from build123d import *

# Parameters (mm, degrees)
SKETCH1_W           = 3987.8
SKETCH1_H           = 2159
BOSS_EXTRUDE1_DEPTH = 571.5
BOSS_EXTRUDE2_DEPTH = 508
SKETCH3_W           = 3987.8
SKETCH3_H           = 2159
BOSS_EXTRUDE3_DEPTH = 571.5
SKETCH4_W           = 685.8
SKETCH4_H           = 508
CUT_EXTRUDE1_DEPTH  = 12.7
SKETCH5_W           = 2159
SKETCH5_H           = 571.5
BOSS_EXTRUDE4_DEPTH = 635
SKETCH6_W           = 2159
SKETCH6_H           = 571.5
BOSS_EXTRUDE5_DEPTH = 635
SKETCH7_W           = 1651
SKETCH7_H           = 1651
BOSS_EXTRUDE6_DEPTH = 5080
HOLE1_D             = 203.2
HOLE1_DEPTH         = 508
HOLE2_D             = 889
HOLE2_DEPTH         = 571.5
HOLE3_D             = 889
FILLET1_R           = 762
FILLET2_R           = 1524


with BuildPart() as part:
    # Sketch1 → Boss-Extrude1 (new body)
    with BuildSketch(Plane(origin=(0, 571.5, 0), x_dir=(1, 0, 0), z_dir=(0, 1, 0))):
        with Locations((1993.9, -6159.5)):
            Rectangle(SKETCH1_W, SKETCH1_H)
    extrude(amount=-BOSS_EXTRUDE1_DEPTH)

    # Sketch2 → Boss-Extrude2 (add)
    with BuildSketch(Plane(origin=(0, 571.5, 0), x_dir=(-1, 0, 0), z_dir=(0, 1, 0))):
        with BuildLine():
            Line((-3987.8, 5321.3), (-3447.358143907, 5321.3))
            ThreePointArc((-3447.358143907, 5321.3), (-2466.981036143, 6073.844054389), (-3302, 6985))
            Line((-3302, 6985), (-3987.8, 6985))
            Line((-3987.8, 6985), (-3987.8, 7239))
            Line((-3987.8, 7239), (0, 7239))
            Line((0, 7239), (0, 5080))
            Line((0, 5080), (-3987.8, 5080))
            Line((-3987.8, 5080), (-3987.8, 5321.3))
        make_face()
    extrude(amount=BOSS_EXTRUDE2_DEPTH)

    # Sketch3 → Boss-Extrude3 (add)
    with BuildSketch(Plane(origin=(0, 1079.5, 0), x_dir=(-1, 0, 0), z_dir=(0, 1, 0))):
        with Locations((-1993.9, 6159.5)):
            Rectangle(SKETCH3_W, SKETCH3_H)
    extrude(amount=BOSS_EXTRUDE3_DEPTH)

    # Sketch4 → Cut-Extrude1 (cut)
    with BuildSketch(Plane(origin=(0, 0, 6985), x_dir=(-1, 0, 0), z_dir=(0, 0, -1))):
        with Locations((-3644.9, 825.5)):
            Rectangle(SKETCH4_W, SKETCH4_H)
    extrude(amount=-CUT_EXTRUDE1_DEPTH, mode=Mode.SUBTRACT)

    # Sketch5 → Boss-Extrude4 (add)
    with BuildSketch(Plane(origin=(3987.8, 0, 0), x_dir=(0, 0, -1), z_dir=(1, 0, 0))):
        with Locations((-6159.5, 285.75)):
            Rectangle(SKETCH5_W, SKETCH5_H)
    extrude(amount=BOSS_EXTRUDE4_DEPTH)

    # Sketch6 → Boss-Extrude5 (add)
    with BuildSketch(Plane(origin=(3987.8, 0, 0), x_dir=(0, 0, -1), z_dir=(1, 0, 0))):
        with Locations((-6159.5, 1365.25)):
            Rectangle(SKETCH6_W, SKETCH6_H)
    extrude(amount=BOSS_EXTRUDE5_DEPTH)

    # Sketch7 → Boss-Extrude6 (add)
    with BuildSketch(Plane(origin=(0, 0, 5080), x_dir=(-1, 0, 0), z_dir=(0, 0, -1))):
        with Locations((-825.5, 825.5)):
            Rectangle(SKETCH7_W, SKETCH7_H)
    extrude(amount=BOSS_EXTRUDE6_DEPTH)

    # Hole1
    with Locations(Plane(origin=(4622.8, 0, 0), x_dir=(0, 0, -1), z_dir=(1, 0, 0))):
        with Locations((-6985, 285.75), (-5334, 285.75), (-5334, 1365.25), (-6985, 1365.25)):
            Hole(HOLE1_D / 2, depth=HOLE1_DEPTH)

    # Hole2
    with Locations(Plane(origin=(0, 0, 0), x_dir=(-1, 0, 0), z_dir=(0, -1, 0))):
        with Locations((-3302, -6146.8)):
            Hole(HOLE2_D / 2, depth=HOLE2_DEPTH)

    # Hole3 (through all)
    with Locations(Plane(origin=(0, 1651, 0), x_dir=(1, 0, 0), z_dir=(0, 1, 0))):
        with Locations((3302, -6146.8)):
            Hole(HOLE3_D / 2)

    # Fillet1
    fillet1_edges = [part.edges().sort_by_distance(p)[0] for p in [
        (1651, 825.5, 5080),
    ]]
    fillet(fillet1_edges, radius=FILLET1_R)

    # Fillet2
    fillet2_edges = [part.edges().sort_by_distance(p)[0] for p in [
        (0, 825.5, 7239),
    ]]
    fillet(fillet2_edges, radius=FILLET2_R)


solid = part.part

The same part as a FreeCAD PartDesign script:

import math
import FreeCAD as App
import Part
import Sketcher
Q = App.Units.Quantity


def edges_at(feature, points):
    """Names of the edges that pass closest to the given points."""
    edges = feature.Shape.Edges
    near = lambda p: min(range(len(edges)), key=lambda i: edges[i].distToShape(Part.Vertex(*p))[0])
    return sorted({f"Edge{near(p) + 1}" for p in points})

doc = App.newDocument("Part")
body = doc.addObject("PartDesign::Body", "Body")

# Sketch on XZ plane
sketch1 = body.newObject("Sketcher::SketchObject", "Sketch")
sketch1.AttachmentSupport = (doc.getObject("XZ_Plane"), [""])
sketch1.MapMode = "FlatFace"
sketch1.AttachmentOffset = App.Placement(App.Vector(0, 0, -22.5 * 25.4), App.Rotation())
sketch1.addGeometry([
    Part.LineSegment(App.Vector(0, 5080, 0), App.Vector(0, 7239, 0)),
    Part.LineSegment(App.Vector(0, 7239, 0), App.Vector(3988, 7239, 0)),
    Part.LineSegment(App.Vector(3988, 7239, 0), App.Vector(3988, 5080, 0)),
    Part.LineSegment(App.Vector(3988, 5080, 0), App.Vector(0, 5080, 0)),
], False)
sketch1.addConstraint([
    Sketcher.Constraint("Coincident", 0, 2, 1, 1),
    Sketcher.Constraint("Coincident", 1, 2, 2, 1),
    Sketcher.Constraint("Coincident", 2, 2, 3, 1),
    Sketcher.Constraint("Coincident", 3, 2, 0, 1),
    Sketcher.Constraint("Vertical", 0),
    Sketcher.Constraint("Horizontal", 1),
    Sketcher.Constraint("Vertical", 2),
    Sketcher.Constraint("Horizontal", 3),
    Sketcher.Constraint("PointOnObject", 0, 2, -2),
    Sketcher.Constraint("DistanceX", 1, 1, 1, 2, Q("157 in")),
    Sketcher.Constraint("DistanceY", 0, 1, 0, 2, Q("85 in")),
    Sketcher.Constraint("DistanceY", -1, 1, 0, 2, Q("285 in")),
])
pad1 = body.newObject("PartDesign::Pad", "Pad")
pad1.Profile = sketch1
pad1.Length = Q("22.5 in")

# Sketch on XZ plane
sketch2 = body.newObject("Sketcher::SketchObject", "Sketch001")
sketch2.AttachmentSupport = (doc.getObject("XZ_Plane"), [""])
sketch2.MapMode = "FlatFace"
sketch2.AttachmentOffset = App.Placement(App.Vector(0, 0, -22.5 * 25.4), App.Rotation())
sketch2.addGeometry([
    Part.LineSegment(App.Vector(3447, 5321, 0), App.Vector(3988, 5321, 0)),  # 0
    Part.LineSegment(App.Vector(3988, 5321, 0), App.Vector(3988, 5080, 0)),  # 1
    Part.LineSegment(App.Vector(3988, 5080, 0), App.Vector(0, 5080, 0)),  # 2
    Part.LineSegment(App.Vector(0, 5080, 0), App.Vector(0, 7239, 0)),  # 3
    Part.LineSegment(App.Vector(0, 7239, 0), App.Vector(3988, 7239, 0)),  # 4
    Part.LineSegment(App.Vector(3988, 7239, 0), App.Vector(3988, 6985, 0)),  # 5
    Part.LineSegment(App.Vector(3988, 6985, 0), App.Vector(3302, 6985, 0)),  # 6
    Part.ArcOfCircle(Part.Circle(App.Vector(3302, 6147, 0), App.Vector(0, 0, 1), 838), math.radians(90), math.radians(280)),  # 7
], False)
sketch2.addConstraint([
    Sketcher.Constraint("Coincident", 0, 2, 1, 1),
    Sketcher.Constraint("Coincident", 1, 2, 2, 1),
    Sketcher.Constraint("Coincident", 2, 2, 3, 1),
    Sketcher.Constraint("Coincident", 3, 2, 4, 1),
    Sketcher.Constraint("Coincident", 4, 2, 5, 1),
    Sketcher.Constraint("Coincident", 5, 2, 6, 1),
    Sketcher.Constraint("Tangent", 6, 2, 7, 1),
    Sketcher.Constraint("Coincident", 7, 2, 0, 1),
    Sketcher.Constraint("Horizontal", 0),
    Sketcher.Constraint("Vertical", 1),
    Sketcher.Constraint("Horizontal", 2),
    Sketcher.Constraint("Vertical", 3),
    Sketcher.Constraint("Horizontal", 4),
    Sketcher.Constraint("Vertical", 5),
    Sketcher.Constraint("Horizontal", 6),
    Sketcher.Constraint("PointOnObject", 2, 2, -2),
    Sketcher.Constraint("Vertical", 1, 2, 4, 2),
    Sketcher.Constraint("Radius", 7, Q("33 in")),
    Sketcher.Constraint("DistanceX", 2, 2, 2, 1, Q("157 in")),
    Sketcher.Constraint("DistanceX", 6, 2, 6, 1, Q("27 in")),
    Sketcher.Constraint("DistanceY", 3, 1, 3, 2, Q("85 in")),
    Sketcher.Constraint("DistanceY", 5, 2, 5, 1, Q("10 in")),
    Sketcher.Constraint("DistanceY", 1, 2, 1, 1, Q("9.5 in")),
    Sketcher.Constraint("DistanceY", -1, 1, 7, 3, Q("242 in")),
])
pad2 = body.newObject("PartDesign::Pad", "Pad001")
pad2.Profile = sketch2
pad2.Length = Q("20 in")
pad2.Reversed = True

# Sketch on XZ plane
sketch3 = body.newObject("Sketcher::SketchObject", "Sketch002")
sketch3.AttachmentSupport = (doc.getObject("XZ_Plane"), [""])
sketch3.MapMode = "FlatFace"
sketch3.AttachmentOffset = App.Placement(App.Vector(0, 0, -42.5 * 25.4), App.Rotation())
sketch3.addGeometry([
    Part.LineSegment(App.Vector(3988, 7239, 0), App.Vector(3988, 5080, 0)),
    Part.LineSegment(App.Vector(3988, 5080, 0), App.Vector(0, 5080, 0)),
    Part.LineSegment(App.Vector(0, 5080, 0), App.Vector(0, 7239, 0)),
    Part.LineSegment(App.Vector(0, 7239, 0), App.Vector(3988, 7239, 0)),
], False)
sketch3.addConstraint([
    Sketcher.Constraint("Coincident", 0, 2, 1, 1),
    Sketcher.Constraint("Coincident", 1, 2, 2, 1),
    Sketcher.Constraint("Coincident", 2, 2, 3, 1),
    Sketcher.Constraint("Coincident", 3, 2, 0, 1),
    Sketcher.Constraint("Vertical", 0),
    Sketcher.Constraint("Horizontal", 1),
    Sketcher.Constraint("Vertical", 2),
    Sketcher.Constraint("Horizontal", 3),
    Sketcher.Constraint("PointOnObject", 1, 2, -2),
    Sketcher.Constraint("DistanceX", 1, 2, 1, 1, Q("157 in")),
    Sketcher.Constraint("DistanceY", 0, 2, 0, 1, Q("85 in")),
    Sketcher.Constraint("DistanceY", -1, 1, 0, 2, Q("200 in")),
])
pad3 = body.newObject("PartDesign::Pad", "Pad002")
pad3.Profile = sketch3
pad3.Length = Q("22.5 in")
pad3.Reversed = True

# Sketch on XY plane
sketch4 = body.newObject("Sketcher::SketchObject", "Sketch003")
sketch4.AttachmentSupport = (doc.getObject("XY_Plane"), [""])
sketch4.MapMode = "FlatFace"
sketch4.AttachmentOffset = App.Placement(App.Vector(0, 0, 275 * 25.4), App.Rotation())
sketch4.addGeometry([
    Part.LineSegment(App.Vector(3988, 1080, 0), App.Vector(3988, 572, 0)),
    Part.LineSegment(App.Vector(3988, 572, 0), App.Vector(3302, 572, 0)),
    Part.LineSegment(App.Vector(3302, 572, 0), App.Vector(3302, 1080, 0)),
    Part.LineSegment(App.Vector(3302, 1080, 0), App.Vector(3988, 1080, 0)),
], False)
sketch4.addConstraint([
    Sketcher.Constraint("Coincident", 0, 2, 1, 1),
    Sketcher.Constraint("Coincident", 1, 2, 2, 1),
    Sketcher.Constraint("Coincident", 2, 2, 3, 1),
    Sketcher.Constraint("Coincident", 3, 2, 0, 1),
    Sketcher.Constraint("Vertical", 0),
    Sketcher.Constraint("Horizontal", 1),
    Sketcher.Constraint("Vertical", 2),
    Sketcher.Constraint("Horizontal", 3),
    Sketcher.Constraint("DistanceX", 1, 2, 1, 1, Q("27 in")),
    Sketcher.Constraint("DistanceY", 0, 2, 0, 1, Q("20 in")),
    Sketcher.Constraint("DistanceX", -1, 1, 0, 2, Q("157 in")),
    Sketcher.Constraint("DistanceY", -1, 1, 0, 2, Q("22.5 in")),
])
pocket1 = body.newObject("PartDesign::Pocket", "Pocket")
pocket1.Profile = sketch4
pocket1.Length = Q("0.5 in")
pocket1.Reversed = True

# Sketch on YZ plane
sketch5 = body.newObject("Sketcher::SketchObject", "Sketch004")
sketch5.AttachmentSupport = (doc.getObject("YZ_Plane"), [""])
sketch5.MapMode = "FlatFace"
sketch5.AttachmentOffset = App.Placement(App.Vector(0, 0, 157 * 25.4), App.Rotation())
sketch5.addGeometry([
    Part.LineSegment(App.Vector(572, 7239, 0), App.Vector(0, 7239, 0)),
    Part.LineSegment(App.Vector(0, 7239, 0), App.Vector(0, 5080, 0)),
    Part.LineSegment(App.Vector(0, 5080, 0), App.Vector(572, 5080, 0)),
    Part.LineSegment(App.Vector(572, 5080, 0), App.Vector(572, 7239, 0)),
], False)
sketch5.addConstraint([
    Sketcher.Constraint("Coincident", 0, 2, 1, 1),
    Sketcher.Constraint("Coincident", 1, 2, 2, 1),
    Sketcher.Constraint("Coincident", 2, 2, 3, 1),
    Sketcher.Constraint("Coincident", 3, 2, 0, 1),
    Sketcher.Constraint("Horizontal", 0),
    Sketcher.Constraint("Vertical", 1),
    Sketcher.Constraint("Horizontal", 2),
    Sketcher.Constraint("Vertical", 3),
    Sketcher.Constraint("PointOnObject", 0, 2, -2),
    Sketcher.Constraint("DistanceY", 1, 2, 1, 1, Q("85 in")),
    Sketcher.Constraint("DistanceX", 0, 2, 0, 1, Q("22.5 in")),
    Sketcher.Constraint("DistanceY", -1, 1, 0, 2, Q("285 in")),
])
pad4 = body.newObject("PartDesign::Pad", "Pad003")
pad4.Profile = sketch5
pad4.Length = Q("25 in")

# Sketch on YZ plane
sketch6 = body.newObject("Sketcher::SketchObject", "Sketch005")
sketch6.AttachmentSupport = (doc.getObject("YZ_Plane"), [""])
sketch6.MapMode = "FlatFace"
sketch6.AttachmentOffset = App.Placement(App.Vector(0, 0, 157 * 25.4), App.Rotation())
sketch6.addGeometry([
    Part.LineSegment(App.Vector(1651, 7239, 0), App.Vector(1080, 7239, 0)),
    Part.LineSegment(App.Vector(1080, 7239, 0), App.Vector(1080, 5080, 0)),
    Part.LineSegment(App.Vector(1080, 5080, 0), App.Vector(1651, 5080, 0)),
    Part.LineSegment(App.Vector(1651, 5080, 0), App.Vector(1651, 7239, 0)),
], False)
sketch6.addConstraint([
    Sketcher.Constraint("Coincident", 0, 2, 1, 1),
    Sketcher.Constraint("Coincident", 1, 2, 2, 1),
    Sketcher.Constraint("Coincident", 2, 2, 3, 1),
    Sketcher.Constraint("Coincident", 3, 2, 0, 1),
    Sketcher.Constraint("Horizontal", 0),
    Sketcher.Constraint("Vertical", 1),
    Sketcher.Constraint("Horizontal", 2),
    Sketcher.Constraint("Vertical", 3),
    Sketcher.Constraint("DistanceY", 1, 2, 1, 1, Q("85 in")),
    Sketcher.Constraint("DistanceX", 0, 2, 0, 1, Q("22.5 in")),
    Sketcher.Constraint("DistanceY", -1, 1, 0, 2, Q("285 in")),
    Sketcher.Constraint("DistanceX", -1, 1, 2, 2, Q("65 in")),
])
pad5 = body.newObject("PartDesign::Pad", "Pad004")
pad5.Profile = sketch6
pad5.Length = Q("25 in")

# Sketch on XY plane
sketch7 = body.newObject("Sketcher::SketchObject", "Sketch006")
sketch7.AttachmentSupport = (doc.getObject("XY_Plane"), [""])
sketch7.MapMode = "FlatFace"
sketch7.AttachmentOffset = App.Placement(App.Vector(0, 0, 200 * 25.4), App.Rotation())
sketch7.addGeometry([
    Part.LineSegment(App.Vector(1651, 1651, 0), App.Vector(1651, 0, 0)),
    Part.LineSegment(App.Vector(1651, 0, 0), App.Vector(0, 0, 0)),
    Part.LineSegment(App.Vector(0, 0, 0), App.Vector(0, 1651, 0)),
    Part.LineSegment(App.Vector(0, 1651, 0), App.Vector(1651, 1651, 0)),
], False)
sketch7.addConstraint([
    Sketcher.Constraint("Coincident", 0, 2, 1, 1),
    Sketcher.Constraint("Coincident", 1, 2, 2, 1),
    Sketcher.Constraint("Coincident", 2, 2, 3, 1),
    Sketcher.Constraint("Coincident", 3, 2, 0, 1),
    Sketcher.Constraint("Vertical", 0),
    Sketcher.Constraint("Horizontal", 1),
    Sketcher.Constraint("Vertical", 2),
    Sketcher.Constraint("Horizontal", 3),
    Sketcher.Constraint("Coincident", 1, 2, -1, 1),
    Sketcher.Constraint("Equal", 3, 0),
    Sketcher.Constraint("DistanceX", 1, 2, 1, 1, Q("65 in")),
])
pad6 = body.newObject("PartDesign::Pad", "Pad005")
pad6.Profile = sketch7
pad6.Length = Q("200 in")
pad6.Reversed = True

# Sketch on YZ plane
sketch8 = body.newObject("Sketcher::SketchObject", "Sketch007")
sketch8.AttachmentSupport = (doc.getObject("YZ_Plane"), [""])
sketch8.MapMode = "FlatFace"
sketch8.AttachmentOffset = App.Placement(App.Vector(0, 0, 182 * 25.4), App.Rotation())
sketch8.addGeometry([
    Part.Circle(App.Vector(286, 6985, 0), App.Vector(0, 0, 1), 102),
    Part.Circle(App.Vector(286, 5334, 0), App.Vector(0, 0, 1), 102),
    Part.Circle(App.Vector(1365, 5334, 0), App.Vector(0, 0, 1), 102),
    Part.Circle(App.Vector(1365, 6985, 0), App.Vector(0, 0, 1), 102),
], False)
sketch8.addConstraint([
    Sketcher.Constraint("Equal", 0, 1),
    Sketcher.Constraint("Equal", 1, 2),
    Sketcher.Constraint("Equal", 2, 3),
    Sketcher.Constraint("Horizontal", 1, 3, 2, 3),
    Sketcher.Constraint("Horizontal", 0, 3, 3, 3),
    Sketcher.Constraint("Vertical", 0, 3, 1, 3),
    Sketcher.Constraint("Vertical", 2, 3, 3, 3),
    Sketcher.Constraint("Diameter", 0, Q("8 in")),
    Sketcher.Constraint("DistanceY", -1, 1, 0, 3, Q("275 in")),
    Sketcher.Constraint("DistanceY", -1, 1, 1, 3, Q("210 in")),
    Sketcher.Constraint("DistanceX", 1, 3, 2, 3, Q("42.5 in")),
    Sketcher.Constraint("DistanceX", -1, 1, 0, 3, Q("11.25 in")),
])
doc.recompute()
hole = body.newObject("PartDesign::Hole", "Hole")
hole.Profile = sketch8
hole.ThreadType = "None"
hole.Diameter = Q("8 in")
hole.DepthType = "Dimension"
hole.Depth = Q("20 in")
hole.DrillPoint = "Flat"

# Sketch on XZ plane
sketch9 = body.newObject("Sketcher::SketchObject", "Sketch008")
sketch9.AttachmentSupport = (doc.getObject("XZ_Plane"), [""])
sketch9.MapMode = "FlatFace"
sketch9.addGeometry(Part.Circle(App.Vector(3302, 6147, 0), App.Vector(0, 0, 1), 444), False)
sketch9.addConstraint([
    Sketcher.Constraint("Diameter", 0, Q("35 in")),
    Sketcher.Constraint("DistanceX", -1, 1, 0, 3, Q("130 in")),
    Sketcher.Constraint("DistanceY", -1, 1, 0, 3, Q("242 in")),
])
doc.recompute()
hole2 = body.newObject("PartDesign::Hole", "Hole001")
hole2.Profile = sketch9
hole2.ThreadType = "None"
hole2.Diameter = Q("35 in")
hole2.DepthType = "Dimension"
hole2.Depth = Q("22.5 in")
hole2.DrillPoint = "Flat"

# Sketch on XZ plane
sketch10 = body.newObject("Sketcher::SketchObject", "Sketch009")
sketch10.AttachmentSupport = (doc.getObject("XZ_Plane"), [""])
sketch10.MapMode = "FlatFace"
sketch10.AttachmentOffset = App.Placement(App.Vector(0, 0, -65 * 25.4), App.Rotation())
sketch10.addGeometry(Part.Circle(App.Vector(3302, 6147, 0), App.Vector(0, 0, 1), 444), False)
sketch10.addConstraint([
    Sketcher.Constraint("Diameter", 0, Q("35 in")),
    Sketcher.Constraint("DistanceX", -1, 1, 0, 3, Q("130 in")),
    Sketcher.Constraint("DistanceY", -1, 1, 0, 3, Q("242 in")),
])
doc.recompute()
hole3 = body.newObject("PartDesign::Hole", "Hole002")
hole3.Profile = sketch10
hole3.ThreadType = "None"
hole3.Diameter = Q("35 in")
hole3.DepthType = "ThroughAll"
hole3.Reversed = True
doc.recompute()

fillet = body.newObject("PartDesign::Fillet", "Fillet")
fillet.Base = (hole3, edges_at(hole3, [(1651, 825.5, 5080)]))
fillet.Radius = Q("30 in")
doc.recompute()

fillet2 = body.newObject("PartDesign::Fillet", "Fillet001")
fillet2.Base = (fillet, edges_at(fillet, [(0, 825.5, 7239)]))
fillet2.Radius = Q("60 in")

doc.recompute()
